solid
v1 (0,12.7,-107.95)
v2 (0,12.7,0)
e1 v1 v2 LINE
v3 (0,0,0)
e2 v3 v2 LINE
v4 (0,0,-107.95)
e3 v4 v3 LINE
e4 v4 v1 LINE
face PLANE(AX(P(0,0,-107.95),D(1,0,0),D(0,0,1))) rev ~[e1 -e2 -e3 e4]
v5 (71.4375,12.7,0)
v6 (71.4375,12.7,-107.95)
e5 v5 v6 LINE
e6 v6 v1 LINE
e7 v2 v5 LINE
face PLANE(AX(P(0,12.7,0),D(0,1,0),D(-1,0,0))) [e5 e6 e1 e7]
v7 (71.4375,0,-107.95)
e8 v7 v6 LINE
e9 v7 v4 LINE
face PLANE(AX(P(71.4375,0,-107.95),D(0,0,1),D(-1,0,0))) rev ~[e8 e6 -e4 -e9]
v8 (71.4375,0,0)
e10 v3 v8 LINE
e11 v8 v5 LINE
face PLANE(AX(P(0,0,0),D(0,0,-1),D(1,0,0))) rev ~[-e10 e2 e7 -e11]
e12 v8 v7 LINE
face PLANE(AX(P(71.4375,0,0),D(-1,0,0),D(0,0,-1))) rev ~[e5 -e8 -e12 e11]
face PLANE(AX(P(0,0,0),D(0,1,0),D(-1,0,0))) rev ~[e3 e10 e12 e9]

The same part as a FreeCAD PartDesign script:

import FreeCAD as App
import Part
import Sketcher
Q = App.Units.Quantity


def add_polygon(sketch, points):
    """Adds a closed chain of lines whose ends are joined by coincident constraints."""
    first, n = sketch.GeometryCount, len(points)
    for a, b in zip(points, points[1:] + points[:1]):
        sketch.addGeometry(Part.LineSegment(App.Vector(*a, 0), App.Vector(*b, 0)), False)
    for i in range(n):
        sketch.addConstraint(Sketcher.Constraint("Coincident", first + i, 2, first + (i + 1) % n, 1))

doc = App.newDocument("Part")
body = doc.addObject("PartDesign::Body", "Body")

# Sketch on XZ plane
sketch1 = doc.addObject("Sketcher::SketchObject", "Sketch")
body.addObject(sketch1)
sketch1.AttachmentSupport = (doc.XZ_Plane, [""])
sketch1.MapMode = "FlatFace"
add_polygon(sketch1, [(0, -108), (0, 0), (71, 0), (71, -108)])  # lines 0-3
sketch1.addConstraint([
    Sketcher.Constraint("Vertical", 0),
    Sketcher.Constraint("Horizontal", 1),
    Sketcher.Constraint("Vertical", 2),
    Sketcher.Constraint("Horizontal", 3),
    Sketcher.Constraint("Coincident", 0, 2, -1, 1),
    Sketcher.Constraint("DistanceY", 0, 1, 0, 2, Q("4.25 in")),
    Sketcher.Constraint("DistanceX", 1, 1, 1, 2, Q("2.8125 in")),
])
pad1 = doc.addObject("PartDesign::Pad", "Pad")
body.addObject(pad1)
pad1.Profile = sketch1
pad1.Length = Q("0.5 in")
pad1.Reversed = True

doc.recompute()
